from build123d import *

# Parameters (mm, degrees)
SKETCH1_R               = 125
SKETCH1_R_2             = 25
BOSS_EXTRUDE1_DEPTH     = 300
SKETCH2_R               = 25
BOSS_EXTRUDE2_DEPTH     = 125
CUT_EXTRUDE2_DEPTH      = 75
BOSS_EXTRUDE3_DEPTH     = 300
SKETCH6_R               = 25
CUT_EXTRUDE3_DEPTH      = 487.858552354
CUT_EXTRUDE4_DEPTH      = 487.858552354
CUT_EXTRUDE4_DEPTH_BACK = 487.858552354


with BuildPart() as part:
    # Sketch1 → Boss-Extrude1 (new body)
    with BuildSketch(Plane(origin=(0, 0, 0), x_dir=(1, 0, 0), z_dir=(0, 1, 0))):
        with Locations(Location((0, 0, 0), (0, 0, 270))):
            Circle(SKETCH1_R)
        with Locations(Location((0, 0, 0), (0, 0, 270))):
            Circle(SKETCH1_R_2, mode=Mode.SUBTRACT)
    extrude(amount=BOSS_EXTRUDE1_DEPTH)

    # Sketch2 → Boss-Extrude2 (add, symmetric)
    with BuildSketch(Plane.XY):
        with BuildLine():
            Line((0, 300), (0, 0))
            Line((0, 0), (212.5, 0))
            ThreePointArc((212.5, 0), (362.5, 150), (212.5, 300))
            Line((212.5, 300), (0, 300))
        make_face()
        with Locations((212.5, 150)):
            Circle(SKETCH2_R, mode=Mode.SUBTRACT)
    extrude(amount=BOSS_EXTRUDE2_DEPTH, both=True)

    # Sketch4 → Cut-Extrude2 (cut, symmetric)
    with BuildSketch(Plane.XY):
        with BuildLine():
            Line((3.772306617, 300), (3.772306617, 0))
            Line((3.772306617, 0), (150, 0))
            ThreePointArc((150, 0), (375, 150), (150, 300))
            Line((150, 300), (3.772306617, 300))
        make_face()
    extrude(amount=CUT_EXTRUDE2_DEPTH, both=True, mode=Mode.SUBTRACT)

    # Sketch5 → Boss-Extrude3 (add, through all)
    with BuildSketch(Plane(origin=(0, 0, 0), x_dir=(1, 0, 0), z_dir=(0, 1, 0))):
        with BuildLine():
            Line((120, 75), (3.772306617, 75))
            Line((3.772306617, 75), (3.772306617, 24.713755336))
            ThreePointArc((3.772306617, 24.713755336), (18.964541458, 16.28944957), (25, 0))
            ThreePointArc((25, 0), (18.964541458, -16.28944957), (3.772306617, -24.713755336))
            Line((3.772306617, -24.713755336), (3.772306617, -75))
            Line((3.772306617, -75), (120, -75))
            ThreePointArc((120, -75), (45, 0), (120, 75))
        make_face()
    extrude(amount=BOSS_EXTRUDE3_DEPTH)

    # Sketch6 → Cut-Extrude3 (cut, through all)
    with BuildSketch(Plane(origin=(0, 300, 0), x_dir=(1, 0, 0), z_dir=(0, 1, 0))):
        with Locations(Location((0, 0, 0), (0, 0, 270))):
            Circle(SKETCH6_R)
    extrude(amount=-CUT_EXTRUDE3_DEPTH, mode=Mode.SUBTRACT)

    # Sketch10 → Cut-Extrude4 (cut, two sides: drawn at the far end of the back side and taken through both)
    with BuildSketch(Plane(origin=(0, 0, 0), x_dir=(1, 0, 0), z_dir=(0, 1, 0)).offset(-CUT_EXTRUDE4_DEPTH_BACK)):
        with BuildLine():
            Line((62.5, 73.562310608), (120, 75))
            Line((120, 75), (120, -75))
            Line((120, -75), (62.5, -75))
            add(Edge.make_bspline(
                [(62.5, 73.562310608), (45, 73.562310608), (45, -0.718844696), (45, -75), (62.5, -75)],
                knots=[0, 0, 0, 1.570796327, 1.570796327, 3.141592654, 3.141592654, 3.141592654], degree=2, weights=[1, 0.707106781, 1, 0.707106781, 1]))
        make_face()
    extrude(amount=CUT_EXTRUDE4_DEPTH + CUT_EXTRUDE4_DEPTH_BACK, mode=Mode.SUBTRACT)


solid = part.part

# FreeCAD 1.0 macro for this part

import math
import FreeCAD as App
import Part
import Sketcher

doc = App.newDocument("Part")
body = doc.addObject("PartDesign::Body", "Body")

sketch1 = body.newObject("Sketcher::SketchObject", "Sketch")
sketch1.AttachmentSupport = (doc.getObject("XZ_Plane"), [""])
sketch1.MapMode = "FlatFace"
sketch1.addGeometry(Part.Circle(App.Vector(0, 0, 0), App.Vector(0, 0, 1), 125), False)
sketch1.addGeometry(Part.Circle(App.Vector(0, 0, 0), App.Vector(0, 0, 1), 25), False)
sketch1.addConstraint(Sketcher.Constraint("Coincident", 0, 3, -1, 1))
sketch1.addConstraint(Sketcher.Constraint("Coincident", 1, 3, -1, 1))
sketch1.addConstraint(Sketcher.Constraint("Diameter", 0, 250.0))
sketch1.addConstraint(Sketcher.Constraint("Diameter", 1, 50.0))
pad1 = body.newObject("PartDesign::Pad", "Pad")
pad1.Profile = sketch1
pad1.Length = 300
pad1.Reversed = True

sketch2 = body.newObject("Sketcher::SketchObject", "Sketch001")
sketch2.AttachmentSupport = (doc.getObject("XY_Plane"), [""])
sketch2.MapMode = "FlatFace"
sketch2.addGeometry(Part.LineSegment(App.Vector(0, 300, 0), App.Vector(0, 0, 0)), False)
sketch2.addGeometry(Part.LineSegment(App.Vector(0, 0, 0), App.Vector(212, 0, 0)), False)
sketch2.addGeometry(Part.ArcOfCircle(Part.Circle(App.Vector(212, 150, 0), App.Vector(0, 0, 1), 150), math.radians(-90), math.radians(90)), False)
sketch2.addGeometry(Part.LineSegment(App.Vector(212, 300, 0), App.Vector(0, 300, 0)), False)
sketch2.addGeometry(Part.Circle(App.Vector(212, 150, 0), App.Vector(0, 0, 1), 25), False)
sketch2.addConstraint(Sketcher.Constraint("Coincident", 0, 2, 1, 1))
sketch2.addConstraint(Sketcher.Constraint("Tangent", 1, 2, 2, 1))
sketch2.addConstraint(Sketcher.Constraint("Tangent", 2, 2, 3, 1))
sketch2.addConstraint(Sketcher.Constraint("Coincident", 3, 2, 0, 1))
sketch2.addConstraint(Sketcher.Constraint("Vertical", 0))
sketch2.addConstraint(Sketcher.Constraint("Horizontal", 1))
sketch2.addConstraint(Sketcher.Constraint("Horizontal", 3))
sketch2.addConstraint(Sketcher.Constraint("Coincident", 0, 2, -1, 1))
sketch2.addConstraint(Sketcher.Constraint("Coincident", 4, 3, 2, 3))
sketch2.addConstraint(Sketcher.Constraint("Diameter", 4, 50.0))
sketch2.addConstraint(Sketcher.Constraint("Radius", 2, 150.0))
sketch2.addConstraint(Sketcher.Constraint("DistanceX", 1, 1, 1, 2, 212.5))
pad2 = body.newObject("PartDesign::Pad", "Pad001")
pad2.Profile = sketch2
pad2.Length = 250
pad2.Midplane = True

sketch3 = body.newObject("Sketcher::SketchObject", "Sketch002")
sketch3.AttachmentSupport = (doc.getObject("XY_Plane"), [""])
sketch3.MapMode = "FlatFace"
sketch3.addGeometry(Part.LineSegment(App.Vector(4, 300, 0), App.Vector(4, 0, 0)), False)
sketch3.addGeometry(Part.LineSegment(App.Vector(4, 0, 0), App.Vector(150, 0, 0)), False)
sketch3.addGeometry(Part.ArcOfCircle(Part.Circle(App.Vector(212, 150, 0), App.Vector(0, 0, 1), 162), math.radians(-113), math.radians(113)), False)
sketch3.addGeometry(Part.LineSegment(App.Vector(150, 300, 0), App.Vector(4, 300, 0)), False)
sketch3.addConstraint(Sketcher.Constraint("Coincident", 0, 2, 1, 1))
sketch3.addConstraint(Sketcher.Constraint("Coincident", 1, 2, 2, 1))
sketch3.addConstraint(Sketcher.Constraint("Coincident", 2, 2, 3, 1))
sketch3.addConstraint(Sketcher.Constraint("Coincident", 3, 2, 0, 1))
sketch3.addConstraint(Sketcher.Constraint("Vertical", 0))
sketch3.addConstraint(Sketcher.Constraint("Horizontal", 1))
sketch3.addConstraint(Sketcher.Constraint("Horizontal", 3))
sketch3.addConstraint(Sketcher.Constraint("PointOnObject", 0, 2, -1))
sketch3.addConstraint(Sketcher.Constraint("Vertical", 1, 2, 2, 2))
sketch3.addConstraint(Sketcher.Constraint("Radius", 2, 162.5))
sketch3.addConstraint(Sketcher.Constraint("DistanceY", 0, 2, 0, 1, 300.0))
sketch3.addConstraint(Sketcher.Constraint("DistanceX", -1, 1, 1, 2, 150.0))
sketch3.addConstraint(Sketcher.Constraint("DistanceX", 1, 1, 1, 2, 146.227693))
pocket1 = body.newObject("PartDesign::Pocket", "Pocket")
pocket1.Profile = sketch3
pocket1.Length = 150
pocket1.Midplane = True

sketch4 = body.newObject("Sketcher::SketchObject", "Sketch003")
sketch4.AttachmentSupport = (doc.getObject("XZ_Plane"), [""])
sketch4.MapMode = "FlatFace"
sketch4.addGeometry(Part.LineSegment(App.Vector(120, -75, 0), App.Vector(4, -75, 0)), False)
sketch4.addGeometry(Part.LineSegment(App.Vector(4, -75, 0), App.Vector(4, -25, 0)), False)
sketch4.addGeometry(Part.ArcOfCircle(Part.Circle(App.Vector(0, 0, 0), App.Vector(0, 0, 1), 25), math.radians(-81), math.radians(81)), False)
sketch4.addGeometry(Part.LineSegment(App.Vector(4, 25, 0), App.Vector(4, 75, 0)), False)
sketch4.addGeometry(Part.LineSegment(App.Vector(4, 75, 0), App.Vector(120, 75, 0)), False)
sketch4.addGeometry(Part.ArcOfCircle(Part.Circle(App.Vector(120, 0, 0), App.Vector(0, 0, 1), 75), math.radians(90), math.radians(270)), False)
sketch4.addConstraint(Sketcher.Constraint("Coincident", 0, 2, 1, 1))
sketch4.addConstraint(Sketcher.Constraint("Coincident", 1, 2, 2, 1))
sketch4.addConstraint(Sketcher.Constraint("Coincident", 2, 2, 3, 1))
sketch4.addConstraint(Sketcher.Constraint("Coincident", 3, 2, 4, 1))
sketch4.addConstraint(Sketcher.Constraint("Tangent", 4, 2, 5, 1))
sketch4.addConstraint(Sketcher.Constraint("Tangent", 5, 2, 0, 1))
sketch4.addConstraint(Sketcher.Constraint("Horizontal", 0))
sketch4.addConstraint(Sketcher.Constraint("Vertical", 1))
sketch4.addConstraint(Sketcher.Constraint("Vertical", 3))
sketch4.addConstraint(Sketcher.Constraint("Horizontal", 4))
sketch4.addConstraint(Sketcher.Constraint("Coincident", 2, 3, -1, 1))
sketch4.addConstraint(Sketcher.Constraint("Symmetric", 0, 2, 3, 2, -1))
sketch4.addConstraint(Sketcher.Constraint("Radius", 2, 25.0))
sketch4.addConstraint(Sketcher.Constraint("Radius", 5, 75.0))
sketch4.addConstraint(Sketcher.Constraint("DistanceX", -1, 1, 5, 3, 120.0))
sketch4.addConstraint(Sketcher.Constraint("DistanceX", 0, 2, 0, 1, 116.227693))
pad3 = body.newObject("PartDesign::Pad", "Pad002")
pad3.Profile = sketch4
pad3.Length = 300
pad3.Reversed = True

sketch5 = body.newObject("Sketcher::SketchObject", "Sketch004")
sketch5.AttachmentSupport = (doc.getObject("XZ_Plane"), [""])
sketch5.MapMode = "FlatFace"
sketch5.AttachmentOffset = App.Placement(App.Vector(0, 0, -300), App.Rotation())
sketch5.addGeometry(Part.Circle(App.Vector(0, 0, 0), App.Vector(0, 0, 1), 25), False)
sketch5.addConstraint(Sketcher.Constraint("Coincident", 0, 3, -1, 1))
sketch5.addConstraint(Sketcher.Constraint("Diameter", 0, 50.0))
pocket2 = body.newObject("PartDesign::Pocket", "Pocket001")
pocket2.Profile = sketch5
pocket2.Type = "ThroughAll"
pocket2.Reversed = True

sketch6 = body.newObject("Sketcher::SketchObject", "Sketch005")
sketch6.AttachmentSupport = (doc.getObject("XZ_Plane"), [""])
sketch6.MapMode = "FlatFace"
sketch6.addGeometry(Part.LineSegment(App.Vector(120, -75, 0), App.Vector(62.5, -73.562311, 0)), False)
sketch6.addGeometry(Part.BSplineCurve([App.Vector(62.5, -73.562311, 0), App.Vector(45, -73.562311, 0), App.Vector(45, 0.718845, 0), App.Vector(45, 75, 0), App.Vector(62.5, 75, 0)], [3, 2, 3], [0, 1.570796327, 3.141592654], False, 2, [1, 0.707106781, 1, 0.707106781, 1], False), False)
sketch6.addGeometry(Part.LineSegment(App.Vector(62.5, 75, 0), App.Vector(120, 75, 0)), False)
sketch6.addGeometry(Part.LineSegment(App.Vector(120, 75, 0), App.Vector(120, -75, 0)), False)
sketch6.addConstraint(Sketcher.Constraint("Block", 1))
sketch6.addConstraint(Sketcher.Constraint("Coincident", 0, 2, 1, 1))
sketch6.addConstraint(Sketcher.Constraint("Coincident", 1, 2, 2, 1))
sketch6.addConstraint(Sketcher.Constraint("Coincident", 2, 2, 3, 1))
sketch6.addConstraint(Sketcher.Constraint("Coincident", 3, 2, 0, 1))
sketch6.addConstraint(Sketcher.Constraint("Horizontal", 2))
sketch6.addConstraint(Sketcher.Constraint("Vertical", 3))
sketch6.addConstraint(Sketcher.Constraint("DistanceY", 3, 2, 3, 1, 150.0))
sketch6.addConstraint(Sketcher.Constraint("DistanceX", 2, 1, 2, 2, 57.5))
pocket3 = body.newObject("PartDesign::Pocket", "Pocket002")
pocket3.Profile = sketch6
pocket3.Type = "ThroughAll"
pocket3.Midplane = True

doc.recompute()
